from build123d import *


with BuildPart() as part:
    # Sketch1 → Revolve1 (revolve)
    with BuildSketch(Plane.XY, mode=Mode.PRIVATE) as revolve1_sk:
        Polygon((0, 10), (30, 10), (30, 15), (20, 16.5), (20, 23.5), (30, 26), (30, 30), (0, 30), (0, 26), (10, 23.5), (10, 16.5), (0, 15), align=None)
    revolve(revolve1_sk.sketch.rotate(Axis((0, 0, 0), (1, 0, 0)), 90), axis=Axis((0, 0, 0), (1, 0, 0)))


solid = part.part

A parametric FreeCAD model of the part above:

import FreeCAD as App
import Part
import Sketcher
Q = App.Units.Quantity

doc = App.newDocument("Part")
body = doc.addObject("PartDesign::Body", "Body")

# Sketch on XY plane
sketch1 = body.newObject("Sketcher::SketchObject", "Sketch")
sketch1.AttachmentSupport = (doc.getObject("XY_Plane"), [""])
sketch1.MapMode = "FlatFace"
sketch1.addGeometry([
    Part.LineSegment(App.Vector(0, 10, 0), App.Vector(30, 10, 0)),  # 0
    Part.LineSegment(App.Vector(30, 10, 0), App.Vector(30, 15, 0)),  # 1
    Part.LineSegment(App.Vector(30, 15, 0), App.Vector(20, 16.5, 0)),  # 2
    Part.LineSegment(App.Vector(20, 16.5, 0), App.Vector(20, 23.5, 0)),  # 3
    Part.LineSegment(App.Vector(20, 23.5, 0), App.Vector(30, 26, 0)),  # 4
    Part.LineSegment(App.Vector(30, 26, 0), App.Vector(30, 30, 0)),  # 5
    Part.LineSegment(App.Vector(30, 30, 0), App.Vector(0, 30, 0)),  # 6
    Part.LineSegment(App.Vector(0, 30, 0), App.Vector(0, 26, 0)),  # 7
    Part.LineSegment(App.Vector(0, 26, 0), App.Vector(10, 23.5, 0)),  # 8
    Part.LineSegment(App.Vector(10, 23.5, 0), App.Vector(10, 16.5, 0)),  # 9
    Part.LineSegment(App.Vector(10, 16.5, 0), App.Vector(0, 15, 0)),  # 10
    Part.LineSegment(App.Vector(0, 15, 0), App.Vector(0, 10, 0)),  # 11
], False)
sketch1.addConstraint([
    Sketcher.Constraint("Coincident", 0, 2, 1, 1),
    Sketcher.Constraint("Coincident", 1, 2, 2, 1),
    Sketcher.Constraint("Coincident", 2, 2, 3, 1),
    Sketcher.Constraint("Coincident", 3, 2, 4, 1),
    Sketcher.Constraint("Coincident", 4, 2, 5, 1),
    Sketcher.Constraint("Coincident", 5, 2, 6, 1),
    Sketcher.Constraint("Coincident", 6, 2, 7, 1),
    Sketcher.Constraint("Coincident", 7, 2, 8, 1),
    Sketcher.Constraint("Coincident", 8, 2, 9, 1),
    Sketcher.Constraint("Coincident", 9, 2, 10, 1),
    Sketcher.Constraint("Coincident", 10, 2, 11, 1),
    Sketcher.Constraint("Coincident", 11, 2, 0, 1),
    Sketcher.Constraint("Horizontal", 0),
    Sketcher.Constraint("Vertical", 1),
    Sketcher.Constraint("Vertical", 3),
    Sketcher.Constraint("Vertical", 5),
    Sketcher.Constraint("Horizontal", 6),
    Sketcher.Constraint("Vertical", 7),
    Sketcher.Constraint("Vertical", 9),
    Sketcher.Constraint("Vertical", 11),
    Sketcher.Constraint("PointOnObject", 6, 2, -2),
    Sketcher.Constraint("PointOnObject", 10, 2, -2),
    Sketcher.Constraint("Horizontal", 4, 2, 7, 2),
    Sketcher.Constraint("Horizontal", 3, 2, 8, 2),
    Sketcher.Constraint("Horizontal", 2, 2, 9, 2),
    Sketcher.Constraint("Horizontal", 1, 2, 10, 2),
    Sketcher.Constraint("Vertical", 1, 2, 4, 2),
    Sketcher.Constraint("Equal", 4, 8),
    Sketcher.Constraint("DistanceX", 0, 1, 0, 2, Q("30 mm")),
    Sketcher.Constraint("DistanceY", 1, 1, 1, 2, Q("5 mm")),
    Sketcher.Constraint("DistanceY", 3, 1, 3, 2, Q("7 mm")),
    Sketcher.Constraint("DistanceY", 5, 1, 5, 2, Q("4 mm")),
    Sketcher.Constraint("DistanceY", -1, 1, 0, 2, Q("10 mm")),
    Sketcher.Constraint("DistanceX", -1, 1, 2, 2, Q("20 mm")),
    Sketcher.Constraint("DistanceY", -1, 1, 4, 2, Q("26 mm")),
    Sketcher.Constraint("DistanceY", -1, 1, 2, 2, Q("16.5 mm")),
])
revolution = body.newObject("PartDesign::Revolution", "Revolution")
revolution.Profile = sketch1
revolution.ReferenceAxis = (sketch1, ["H_Axis"])
revolution.Angle = 360

doc.recompute()
